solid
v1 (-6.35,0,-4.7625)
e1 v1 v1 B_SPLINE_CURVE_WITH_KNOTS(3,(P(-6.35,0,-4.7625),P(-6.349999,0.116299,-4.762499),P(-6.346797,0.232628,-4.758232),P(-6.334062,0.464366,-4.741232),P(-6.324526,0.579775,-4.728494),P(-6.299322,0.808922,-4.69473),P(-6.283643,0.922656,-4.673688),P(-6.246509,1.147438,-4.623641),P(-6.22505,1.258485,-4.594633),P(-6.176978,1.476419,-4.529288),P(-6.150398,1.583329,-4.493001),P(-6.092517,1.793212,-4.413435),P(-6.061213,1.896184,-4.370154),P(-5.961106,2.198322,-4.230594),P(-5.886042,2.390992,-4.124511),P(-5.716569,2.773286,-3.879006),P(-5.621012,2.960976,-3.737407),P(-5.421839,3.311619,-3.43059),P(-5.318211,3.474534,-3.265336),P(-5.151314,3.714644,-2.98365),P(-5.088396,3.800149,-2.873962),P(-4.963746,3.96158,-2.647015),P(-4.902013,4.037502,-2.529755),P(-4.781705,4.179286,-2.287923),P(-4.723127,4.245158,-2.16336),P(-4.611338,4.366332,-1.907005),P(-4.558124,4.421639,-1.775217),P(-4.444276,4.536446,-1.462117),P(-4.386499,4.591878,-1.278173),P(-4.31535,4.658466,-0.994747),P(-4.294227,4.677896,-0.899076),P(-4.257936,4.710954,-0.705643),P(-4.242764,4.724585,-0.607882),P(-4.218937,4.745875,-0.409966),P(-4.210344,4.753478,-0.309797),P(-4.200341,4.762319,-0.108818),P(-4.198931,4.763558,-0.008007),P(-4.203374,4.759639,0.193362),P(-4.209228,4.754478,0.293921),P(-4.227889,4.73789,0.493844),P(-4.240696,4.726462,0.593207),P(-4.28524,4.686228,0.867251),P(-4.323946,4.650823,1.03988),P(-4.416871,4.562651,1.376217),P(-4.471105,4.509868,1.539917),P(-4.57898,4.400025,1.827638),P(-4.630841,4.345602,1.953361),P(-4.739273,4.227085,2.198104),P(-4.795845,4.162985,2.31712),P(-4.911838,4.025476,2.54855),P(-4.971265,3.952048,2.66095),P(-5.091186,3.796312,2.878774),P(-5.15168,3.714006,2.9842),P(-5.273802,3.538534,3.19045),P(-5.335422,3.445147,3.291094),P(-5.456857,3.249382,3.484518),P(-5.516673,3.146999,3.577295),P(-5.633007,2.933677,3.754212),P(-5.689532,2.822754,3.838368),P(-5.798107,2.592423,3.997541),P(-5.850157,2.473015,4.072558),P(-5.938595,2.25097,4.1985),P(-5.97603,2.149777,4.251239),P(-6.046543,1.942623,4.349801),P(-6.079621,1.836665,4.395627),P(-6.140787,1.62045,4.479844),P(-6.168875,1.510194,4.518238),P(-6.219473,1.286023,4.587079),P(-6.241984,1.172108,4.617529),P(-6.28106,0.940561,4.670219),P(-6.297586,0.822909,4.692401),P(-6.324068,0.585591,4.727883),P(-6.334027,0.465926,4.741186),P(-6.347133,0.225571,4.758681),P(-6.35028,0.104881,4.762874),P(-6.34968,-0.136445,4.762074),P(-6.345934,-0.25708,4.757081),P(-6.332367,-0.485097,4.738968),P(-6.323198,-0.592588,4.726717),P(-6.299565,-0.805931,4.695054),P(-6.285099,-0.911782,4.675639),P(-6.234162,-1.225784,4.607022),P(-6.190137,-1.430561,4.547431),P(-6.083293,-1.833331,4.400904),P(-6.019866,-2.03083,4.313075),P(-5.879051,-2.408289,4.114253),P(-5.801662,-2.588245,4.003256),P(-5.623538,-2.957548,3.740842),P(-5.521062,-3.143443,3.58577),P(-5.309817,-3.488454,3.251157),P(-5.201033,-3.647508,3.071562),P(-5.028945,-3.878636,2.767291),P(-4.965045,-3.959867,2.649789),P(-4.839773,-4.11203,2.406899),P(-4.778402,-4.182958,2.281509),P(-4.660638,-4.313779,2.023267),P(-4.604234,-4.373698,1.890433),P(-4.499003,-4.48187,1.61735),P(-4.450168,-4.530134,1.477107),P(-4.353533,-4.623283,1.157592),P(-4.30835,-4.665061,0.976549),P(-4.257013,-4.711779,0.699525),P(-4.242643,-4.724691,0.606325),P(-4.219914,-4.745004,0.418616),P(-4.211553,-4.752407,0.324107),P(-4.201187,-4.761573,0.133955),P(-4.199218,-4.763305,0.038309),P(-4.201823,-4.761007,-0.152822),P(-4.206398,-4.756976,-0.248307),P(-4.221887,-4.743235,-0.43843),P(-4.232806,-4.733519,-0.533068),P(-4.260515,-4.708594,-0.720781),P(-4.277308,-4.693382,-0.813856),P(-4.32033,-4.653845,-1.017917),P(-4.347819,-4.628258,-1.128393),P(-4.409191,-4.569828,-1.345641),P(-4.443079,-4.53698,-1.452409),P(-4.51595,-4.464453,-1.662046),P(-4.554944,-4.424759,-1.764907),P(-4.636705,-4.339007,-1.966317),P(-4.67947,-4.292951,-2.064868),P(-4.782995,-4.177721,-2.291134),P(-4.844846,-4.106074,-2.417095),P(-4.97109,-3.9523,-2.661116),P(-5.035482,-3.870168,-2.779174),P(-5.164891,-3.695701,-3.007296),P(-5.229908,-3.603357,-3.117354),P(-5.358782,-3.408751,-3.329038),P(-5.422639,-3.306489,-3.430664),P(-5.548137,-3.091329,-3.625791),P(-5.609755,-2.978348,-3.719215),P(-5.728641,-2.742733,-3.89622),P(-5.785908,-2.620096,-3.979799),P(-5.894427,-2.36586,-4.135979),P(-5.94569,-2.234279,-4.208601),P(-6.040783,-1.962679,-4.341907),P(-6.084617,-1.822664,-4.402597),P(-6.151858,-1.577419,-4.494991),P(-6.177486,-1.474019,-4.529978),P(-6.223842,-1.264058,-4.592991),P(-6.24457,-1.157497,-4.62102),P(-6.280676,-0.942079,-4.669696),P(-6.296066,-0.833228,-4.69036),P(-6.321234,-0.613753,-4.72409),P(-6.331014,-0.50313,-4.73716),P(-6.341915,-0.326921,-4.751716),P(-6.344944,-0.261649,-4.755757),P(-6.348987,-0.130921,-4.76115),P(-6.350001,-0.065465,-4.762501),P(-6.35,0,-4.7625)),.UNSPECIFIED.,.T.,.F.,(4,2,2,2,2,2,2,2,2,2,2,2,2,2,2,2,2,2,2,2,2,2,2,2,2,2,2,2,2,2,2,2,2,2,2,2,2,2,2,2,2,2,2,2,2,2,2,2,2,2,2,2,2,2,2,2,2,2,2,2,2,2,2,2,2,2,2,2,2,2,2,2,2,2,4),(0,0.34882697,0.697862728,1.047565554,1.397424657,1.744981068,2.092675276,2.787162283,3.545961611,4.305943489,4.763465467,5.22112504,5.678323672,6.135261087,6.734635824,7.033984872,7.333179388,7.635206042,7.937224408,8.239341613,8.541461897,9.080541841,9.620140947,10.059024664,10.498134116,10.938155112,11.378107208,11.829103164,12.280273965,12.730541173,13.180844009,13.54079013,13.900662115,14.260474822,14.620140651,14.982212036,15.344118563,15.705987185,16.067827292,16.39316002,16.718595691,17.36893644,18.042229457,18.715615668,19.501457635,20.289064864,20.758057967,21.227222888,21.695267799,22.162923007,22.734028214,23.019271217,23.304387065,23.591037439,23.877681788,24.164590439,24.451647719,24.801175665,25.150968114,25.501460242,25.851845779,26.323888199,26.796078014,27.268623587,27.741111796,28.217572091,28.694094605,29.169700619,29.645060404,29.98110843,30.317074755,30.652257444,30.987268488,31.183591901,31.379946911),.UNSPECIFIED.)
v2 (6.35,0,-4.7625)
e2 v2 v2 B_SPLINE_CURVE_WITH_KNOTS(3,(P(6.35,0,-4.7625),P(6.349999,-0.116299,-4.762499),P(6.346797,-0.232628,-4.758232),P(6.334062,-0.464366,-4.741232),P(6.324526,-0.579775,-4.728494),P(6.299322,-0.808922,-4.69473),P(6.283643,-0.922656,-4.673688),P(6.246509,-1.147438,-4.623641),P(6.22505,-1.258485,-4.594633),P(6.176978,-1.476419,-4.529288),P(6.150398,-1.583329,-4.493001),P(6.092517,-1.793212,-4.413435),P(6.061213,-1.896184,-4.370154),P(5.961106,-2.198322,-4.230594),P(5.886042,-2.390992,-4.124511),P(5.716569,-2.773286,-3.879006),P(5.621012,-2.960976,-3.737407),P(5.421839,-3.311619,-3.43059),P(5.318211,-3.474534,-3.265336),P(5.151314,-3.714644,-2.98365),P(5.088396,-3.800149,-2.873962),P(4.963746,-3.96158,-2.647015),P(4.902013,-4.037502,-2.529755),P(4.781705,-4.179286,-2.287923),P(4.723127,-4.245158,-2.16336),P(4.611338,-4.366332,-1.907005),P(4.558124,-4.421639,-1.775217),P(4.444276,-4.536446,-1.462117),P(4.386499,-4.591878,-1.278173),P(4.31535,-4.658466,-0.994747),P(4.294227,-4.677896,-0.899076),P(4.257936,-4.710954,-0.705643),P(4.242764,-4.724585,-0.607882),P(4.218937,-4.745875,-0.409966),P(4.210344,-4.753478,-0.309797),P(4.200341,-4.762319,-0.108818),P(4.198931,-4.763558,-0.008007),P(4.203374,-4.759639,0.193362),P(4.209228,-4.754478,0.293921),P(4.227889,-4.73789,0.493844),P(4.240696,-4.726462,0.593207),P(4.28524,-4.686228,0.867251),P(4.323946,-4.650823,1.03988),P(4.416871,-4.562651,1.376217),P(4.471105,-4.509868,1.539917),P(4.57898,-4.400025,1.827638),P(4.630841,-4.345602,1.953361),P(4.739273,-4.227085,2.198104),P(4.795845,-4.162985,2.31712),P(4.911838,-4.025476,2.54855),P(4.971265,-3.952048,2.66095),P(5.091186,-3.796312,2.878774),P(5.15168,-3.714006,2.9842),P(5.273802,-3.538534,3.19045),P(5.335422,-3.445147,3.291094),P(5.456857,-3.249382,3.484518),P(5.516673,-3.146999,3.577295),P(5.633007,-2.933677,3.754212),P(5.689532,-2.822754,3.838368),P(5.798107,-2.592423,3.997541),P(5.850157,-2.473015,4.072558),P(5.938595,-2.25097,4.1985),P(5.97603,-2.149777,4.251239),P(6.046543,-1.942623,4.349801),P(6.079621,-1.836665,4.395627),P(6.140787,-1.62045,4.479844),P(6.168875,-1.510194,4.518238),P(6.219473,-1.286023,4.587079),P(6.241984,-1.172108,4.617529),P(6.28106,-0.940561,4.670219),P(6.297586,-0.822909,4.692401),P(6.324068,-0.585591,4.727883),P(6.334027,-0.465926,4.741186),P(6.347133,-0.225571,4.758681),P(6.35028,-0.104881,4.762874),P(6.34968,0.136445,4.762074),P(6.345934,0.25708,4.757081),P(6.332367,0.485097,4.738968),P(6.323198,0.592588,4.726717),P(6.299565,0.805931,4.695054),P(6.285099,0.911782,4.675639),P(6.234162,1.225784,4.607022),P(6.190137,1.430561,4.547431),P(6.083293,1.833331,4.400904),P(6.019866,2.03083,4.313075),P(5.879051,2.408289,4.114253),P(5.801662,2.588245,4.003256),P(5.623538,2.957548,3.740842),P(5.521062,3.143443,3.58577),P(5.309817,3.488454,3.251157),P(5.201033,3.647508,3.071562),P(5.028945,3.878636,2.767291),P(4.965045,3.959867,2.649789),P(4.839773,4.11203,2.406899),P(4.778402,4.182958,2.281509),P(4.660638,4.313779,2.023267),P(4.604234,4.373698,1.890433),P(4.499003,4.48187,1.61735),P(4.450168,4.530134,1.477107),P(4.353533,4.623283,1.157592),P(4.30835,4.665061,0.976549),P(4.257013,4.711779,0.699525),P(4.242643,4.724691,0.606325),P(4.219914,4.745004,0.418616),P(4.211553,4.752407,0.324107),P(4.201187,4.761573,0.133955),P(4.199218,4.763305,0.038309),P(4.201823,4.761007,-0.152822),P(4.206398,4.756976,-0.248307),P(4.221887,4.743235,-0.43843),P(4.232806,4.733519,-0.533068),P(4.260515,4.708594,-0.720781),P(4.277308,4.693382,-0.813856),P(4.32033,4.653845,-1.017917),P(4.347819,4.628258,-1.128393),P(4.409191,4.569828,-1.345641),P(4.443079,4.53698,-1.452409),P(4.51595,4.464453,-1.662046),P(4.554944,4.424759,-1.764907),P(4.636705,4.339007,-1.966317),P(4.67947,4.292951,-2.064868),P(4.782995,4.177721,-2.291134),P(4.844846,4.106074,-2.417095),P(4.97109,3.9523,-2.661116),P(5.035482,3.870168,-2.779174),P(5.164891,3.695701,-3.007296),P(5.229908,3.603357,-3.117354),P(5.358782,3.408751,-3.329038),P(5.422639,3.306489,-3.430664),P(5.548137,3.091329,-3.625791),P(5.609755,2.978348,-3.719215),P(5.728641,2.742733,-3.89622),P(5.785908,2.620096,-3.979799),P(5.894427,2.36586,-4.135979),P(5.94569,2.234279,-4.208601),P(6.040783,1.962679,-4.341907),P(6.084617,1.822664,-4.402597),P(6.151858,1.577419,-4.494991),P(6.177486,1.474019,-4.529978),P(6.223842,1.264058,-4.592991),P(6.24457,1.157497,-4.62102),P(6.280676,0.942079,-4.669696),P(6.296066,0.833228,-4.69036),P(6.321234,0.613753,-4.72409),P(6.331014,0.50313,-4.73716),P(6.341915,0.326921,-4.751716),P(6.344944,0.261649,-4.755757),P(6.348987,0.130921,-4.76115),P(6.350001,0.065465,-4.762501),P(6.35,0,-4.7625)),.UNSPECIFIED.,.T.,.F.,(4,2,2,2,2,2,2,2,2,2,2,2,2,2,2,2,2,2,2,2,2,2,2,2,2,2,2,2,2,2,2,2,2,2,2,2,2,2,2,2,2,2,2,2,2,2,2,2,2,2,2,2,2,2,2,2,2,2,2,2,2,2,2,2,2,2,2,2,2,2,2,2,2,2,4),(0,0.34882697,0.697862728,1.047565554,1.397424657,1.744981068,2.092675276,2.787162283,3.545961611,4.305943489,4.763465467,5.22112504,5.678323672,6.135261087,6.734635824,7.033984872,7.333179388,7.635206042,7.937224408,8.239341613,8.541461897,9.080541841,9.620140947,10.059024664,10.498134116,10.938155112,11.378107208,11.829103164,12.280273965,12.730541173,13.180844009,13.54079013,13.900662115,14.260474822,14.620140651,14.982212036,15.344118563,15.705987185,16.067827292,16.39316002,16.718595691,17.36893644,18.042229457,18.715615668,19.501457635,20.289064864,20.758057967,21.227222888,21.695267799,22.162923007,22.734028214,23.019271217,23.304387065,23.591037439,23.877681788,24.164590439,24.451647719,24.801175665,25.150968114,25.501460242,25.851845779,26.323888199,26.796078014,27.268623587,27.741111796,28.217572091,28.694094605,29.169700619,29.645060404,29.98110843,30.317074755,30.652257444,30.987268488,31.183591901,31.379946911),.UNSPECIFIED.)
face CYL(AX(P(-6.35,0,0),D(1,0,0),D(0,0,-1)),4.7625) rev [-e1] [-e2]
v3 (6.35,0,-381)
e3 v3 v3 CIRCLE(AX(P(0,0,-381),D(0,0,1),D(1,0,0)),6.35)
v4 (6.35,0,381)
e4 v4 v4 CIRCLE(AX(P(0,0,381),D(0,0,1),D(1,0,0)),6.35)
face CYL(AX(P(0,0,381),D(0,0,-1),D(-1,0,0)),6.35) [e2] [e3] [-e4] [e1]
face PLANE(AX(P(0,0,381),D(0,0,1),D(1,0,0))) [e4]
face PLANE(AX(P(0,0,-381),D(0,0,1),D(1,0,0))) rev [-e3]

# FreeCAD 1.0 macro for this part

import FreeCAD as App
import Part
import Sketcher

V = App.Vector
Q = App.Units.Quantity

doc = App.newDocument("Part")
body = doc.addObject("PartDesign::Body", "Body")

# Sketch on XY plane
sketch1 = body.newObject("Sketcher::SketchObject", "Sketch")
sketch1.AttachmentSupport = (doc.getObject("XY_Plane"), [""])
sketch1.MapMode = "FlatFace"
sketch1.addGeometry(Part.Circle(V(0, 0, 0), V(0, 0, 1), 6), False)
sketch1.addConstraint([
    Sketcher.Constraint("Coincident", 0, 3, -1, 1),
    Sketcher.Constraint("Diameter", 0, Q("0.5 in")),
])
pad1 = body.newObject("PartDesign::Pad", "Pad")
pad1.Profile = sketch1
pad1.Length = Q("30 in")
pad1.Midplane = True

# Sketch on YZ plane
sketch2 = body.newObject("Sketcher::SketchObject", "Sketch001")
sketch2.AttachmentSupport = (doc.getObject("YZ_Plane"), [""])
sketch2.MapMode = "FlatFace"
sketch2.addGeometry(Part.Circle(V(0, 0, 0), V(0, 0, 1), 4.8), False)
sketch2.addConstraint([
    Sketcher.Constraint("Coincident", 0, 3, -1, 1),
    Sketcher.Constraint("Diameter", 0, Q("0.375 in")),
])
pocket1 = body.newObject("PartDesign::Pocket", "Pocket")
pocket1.Profile = sketch2
pocket1.Type = "ThroughAll"
pocket1.Midplane = True

doc.recompute()
